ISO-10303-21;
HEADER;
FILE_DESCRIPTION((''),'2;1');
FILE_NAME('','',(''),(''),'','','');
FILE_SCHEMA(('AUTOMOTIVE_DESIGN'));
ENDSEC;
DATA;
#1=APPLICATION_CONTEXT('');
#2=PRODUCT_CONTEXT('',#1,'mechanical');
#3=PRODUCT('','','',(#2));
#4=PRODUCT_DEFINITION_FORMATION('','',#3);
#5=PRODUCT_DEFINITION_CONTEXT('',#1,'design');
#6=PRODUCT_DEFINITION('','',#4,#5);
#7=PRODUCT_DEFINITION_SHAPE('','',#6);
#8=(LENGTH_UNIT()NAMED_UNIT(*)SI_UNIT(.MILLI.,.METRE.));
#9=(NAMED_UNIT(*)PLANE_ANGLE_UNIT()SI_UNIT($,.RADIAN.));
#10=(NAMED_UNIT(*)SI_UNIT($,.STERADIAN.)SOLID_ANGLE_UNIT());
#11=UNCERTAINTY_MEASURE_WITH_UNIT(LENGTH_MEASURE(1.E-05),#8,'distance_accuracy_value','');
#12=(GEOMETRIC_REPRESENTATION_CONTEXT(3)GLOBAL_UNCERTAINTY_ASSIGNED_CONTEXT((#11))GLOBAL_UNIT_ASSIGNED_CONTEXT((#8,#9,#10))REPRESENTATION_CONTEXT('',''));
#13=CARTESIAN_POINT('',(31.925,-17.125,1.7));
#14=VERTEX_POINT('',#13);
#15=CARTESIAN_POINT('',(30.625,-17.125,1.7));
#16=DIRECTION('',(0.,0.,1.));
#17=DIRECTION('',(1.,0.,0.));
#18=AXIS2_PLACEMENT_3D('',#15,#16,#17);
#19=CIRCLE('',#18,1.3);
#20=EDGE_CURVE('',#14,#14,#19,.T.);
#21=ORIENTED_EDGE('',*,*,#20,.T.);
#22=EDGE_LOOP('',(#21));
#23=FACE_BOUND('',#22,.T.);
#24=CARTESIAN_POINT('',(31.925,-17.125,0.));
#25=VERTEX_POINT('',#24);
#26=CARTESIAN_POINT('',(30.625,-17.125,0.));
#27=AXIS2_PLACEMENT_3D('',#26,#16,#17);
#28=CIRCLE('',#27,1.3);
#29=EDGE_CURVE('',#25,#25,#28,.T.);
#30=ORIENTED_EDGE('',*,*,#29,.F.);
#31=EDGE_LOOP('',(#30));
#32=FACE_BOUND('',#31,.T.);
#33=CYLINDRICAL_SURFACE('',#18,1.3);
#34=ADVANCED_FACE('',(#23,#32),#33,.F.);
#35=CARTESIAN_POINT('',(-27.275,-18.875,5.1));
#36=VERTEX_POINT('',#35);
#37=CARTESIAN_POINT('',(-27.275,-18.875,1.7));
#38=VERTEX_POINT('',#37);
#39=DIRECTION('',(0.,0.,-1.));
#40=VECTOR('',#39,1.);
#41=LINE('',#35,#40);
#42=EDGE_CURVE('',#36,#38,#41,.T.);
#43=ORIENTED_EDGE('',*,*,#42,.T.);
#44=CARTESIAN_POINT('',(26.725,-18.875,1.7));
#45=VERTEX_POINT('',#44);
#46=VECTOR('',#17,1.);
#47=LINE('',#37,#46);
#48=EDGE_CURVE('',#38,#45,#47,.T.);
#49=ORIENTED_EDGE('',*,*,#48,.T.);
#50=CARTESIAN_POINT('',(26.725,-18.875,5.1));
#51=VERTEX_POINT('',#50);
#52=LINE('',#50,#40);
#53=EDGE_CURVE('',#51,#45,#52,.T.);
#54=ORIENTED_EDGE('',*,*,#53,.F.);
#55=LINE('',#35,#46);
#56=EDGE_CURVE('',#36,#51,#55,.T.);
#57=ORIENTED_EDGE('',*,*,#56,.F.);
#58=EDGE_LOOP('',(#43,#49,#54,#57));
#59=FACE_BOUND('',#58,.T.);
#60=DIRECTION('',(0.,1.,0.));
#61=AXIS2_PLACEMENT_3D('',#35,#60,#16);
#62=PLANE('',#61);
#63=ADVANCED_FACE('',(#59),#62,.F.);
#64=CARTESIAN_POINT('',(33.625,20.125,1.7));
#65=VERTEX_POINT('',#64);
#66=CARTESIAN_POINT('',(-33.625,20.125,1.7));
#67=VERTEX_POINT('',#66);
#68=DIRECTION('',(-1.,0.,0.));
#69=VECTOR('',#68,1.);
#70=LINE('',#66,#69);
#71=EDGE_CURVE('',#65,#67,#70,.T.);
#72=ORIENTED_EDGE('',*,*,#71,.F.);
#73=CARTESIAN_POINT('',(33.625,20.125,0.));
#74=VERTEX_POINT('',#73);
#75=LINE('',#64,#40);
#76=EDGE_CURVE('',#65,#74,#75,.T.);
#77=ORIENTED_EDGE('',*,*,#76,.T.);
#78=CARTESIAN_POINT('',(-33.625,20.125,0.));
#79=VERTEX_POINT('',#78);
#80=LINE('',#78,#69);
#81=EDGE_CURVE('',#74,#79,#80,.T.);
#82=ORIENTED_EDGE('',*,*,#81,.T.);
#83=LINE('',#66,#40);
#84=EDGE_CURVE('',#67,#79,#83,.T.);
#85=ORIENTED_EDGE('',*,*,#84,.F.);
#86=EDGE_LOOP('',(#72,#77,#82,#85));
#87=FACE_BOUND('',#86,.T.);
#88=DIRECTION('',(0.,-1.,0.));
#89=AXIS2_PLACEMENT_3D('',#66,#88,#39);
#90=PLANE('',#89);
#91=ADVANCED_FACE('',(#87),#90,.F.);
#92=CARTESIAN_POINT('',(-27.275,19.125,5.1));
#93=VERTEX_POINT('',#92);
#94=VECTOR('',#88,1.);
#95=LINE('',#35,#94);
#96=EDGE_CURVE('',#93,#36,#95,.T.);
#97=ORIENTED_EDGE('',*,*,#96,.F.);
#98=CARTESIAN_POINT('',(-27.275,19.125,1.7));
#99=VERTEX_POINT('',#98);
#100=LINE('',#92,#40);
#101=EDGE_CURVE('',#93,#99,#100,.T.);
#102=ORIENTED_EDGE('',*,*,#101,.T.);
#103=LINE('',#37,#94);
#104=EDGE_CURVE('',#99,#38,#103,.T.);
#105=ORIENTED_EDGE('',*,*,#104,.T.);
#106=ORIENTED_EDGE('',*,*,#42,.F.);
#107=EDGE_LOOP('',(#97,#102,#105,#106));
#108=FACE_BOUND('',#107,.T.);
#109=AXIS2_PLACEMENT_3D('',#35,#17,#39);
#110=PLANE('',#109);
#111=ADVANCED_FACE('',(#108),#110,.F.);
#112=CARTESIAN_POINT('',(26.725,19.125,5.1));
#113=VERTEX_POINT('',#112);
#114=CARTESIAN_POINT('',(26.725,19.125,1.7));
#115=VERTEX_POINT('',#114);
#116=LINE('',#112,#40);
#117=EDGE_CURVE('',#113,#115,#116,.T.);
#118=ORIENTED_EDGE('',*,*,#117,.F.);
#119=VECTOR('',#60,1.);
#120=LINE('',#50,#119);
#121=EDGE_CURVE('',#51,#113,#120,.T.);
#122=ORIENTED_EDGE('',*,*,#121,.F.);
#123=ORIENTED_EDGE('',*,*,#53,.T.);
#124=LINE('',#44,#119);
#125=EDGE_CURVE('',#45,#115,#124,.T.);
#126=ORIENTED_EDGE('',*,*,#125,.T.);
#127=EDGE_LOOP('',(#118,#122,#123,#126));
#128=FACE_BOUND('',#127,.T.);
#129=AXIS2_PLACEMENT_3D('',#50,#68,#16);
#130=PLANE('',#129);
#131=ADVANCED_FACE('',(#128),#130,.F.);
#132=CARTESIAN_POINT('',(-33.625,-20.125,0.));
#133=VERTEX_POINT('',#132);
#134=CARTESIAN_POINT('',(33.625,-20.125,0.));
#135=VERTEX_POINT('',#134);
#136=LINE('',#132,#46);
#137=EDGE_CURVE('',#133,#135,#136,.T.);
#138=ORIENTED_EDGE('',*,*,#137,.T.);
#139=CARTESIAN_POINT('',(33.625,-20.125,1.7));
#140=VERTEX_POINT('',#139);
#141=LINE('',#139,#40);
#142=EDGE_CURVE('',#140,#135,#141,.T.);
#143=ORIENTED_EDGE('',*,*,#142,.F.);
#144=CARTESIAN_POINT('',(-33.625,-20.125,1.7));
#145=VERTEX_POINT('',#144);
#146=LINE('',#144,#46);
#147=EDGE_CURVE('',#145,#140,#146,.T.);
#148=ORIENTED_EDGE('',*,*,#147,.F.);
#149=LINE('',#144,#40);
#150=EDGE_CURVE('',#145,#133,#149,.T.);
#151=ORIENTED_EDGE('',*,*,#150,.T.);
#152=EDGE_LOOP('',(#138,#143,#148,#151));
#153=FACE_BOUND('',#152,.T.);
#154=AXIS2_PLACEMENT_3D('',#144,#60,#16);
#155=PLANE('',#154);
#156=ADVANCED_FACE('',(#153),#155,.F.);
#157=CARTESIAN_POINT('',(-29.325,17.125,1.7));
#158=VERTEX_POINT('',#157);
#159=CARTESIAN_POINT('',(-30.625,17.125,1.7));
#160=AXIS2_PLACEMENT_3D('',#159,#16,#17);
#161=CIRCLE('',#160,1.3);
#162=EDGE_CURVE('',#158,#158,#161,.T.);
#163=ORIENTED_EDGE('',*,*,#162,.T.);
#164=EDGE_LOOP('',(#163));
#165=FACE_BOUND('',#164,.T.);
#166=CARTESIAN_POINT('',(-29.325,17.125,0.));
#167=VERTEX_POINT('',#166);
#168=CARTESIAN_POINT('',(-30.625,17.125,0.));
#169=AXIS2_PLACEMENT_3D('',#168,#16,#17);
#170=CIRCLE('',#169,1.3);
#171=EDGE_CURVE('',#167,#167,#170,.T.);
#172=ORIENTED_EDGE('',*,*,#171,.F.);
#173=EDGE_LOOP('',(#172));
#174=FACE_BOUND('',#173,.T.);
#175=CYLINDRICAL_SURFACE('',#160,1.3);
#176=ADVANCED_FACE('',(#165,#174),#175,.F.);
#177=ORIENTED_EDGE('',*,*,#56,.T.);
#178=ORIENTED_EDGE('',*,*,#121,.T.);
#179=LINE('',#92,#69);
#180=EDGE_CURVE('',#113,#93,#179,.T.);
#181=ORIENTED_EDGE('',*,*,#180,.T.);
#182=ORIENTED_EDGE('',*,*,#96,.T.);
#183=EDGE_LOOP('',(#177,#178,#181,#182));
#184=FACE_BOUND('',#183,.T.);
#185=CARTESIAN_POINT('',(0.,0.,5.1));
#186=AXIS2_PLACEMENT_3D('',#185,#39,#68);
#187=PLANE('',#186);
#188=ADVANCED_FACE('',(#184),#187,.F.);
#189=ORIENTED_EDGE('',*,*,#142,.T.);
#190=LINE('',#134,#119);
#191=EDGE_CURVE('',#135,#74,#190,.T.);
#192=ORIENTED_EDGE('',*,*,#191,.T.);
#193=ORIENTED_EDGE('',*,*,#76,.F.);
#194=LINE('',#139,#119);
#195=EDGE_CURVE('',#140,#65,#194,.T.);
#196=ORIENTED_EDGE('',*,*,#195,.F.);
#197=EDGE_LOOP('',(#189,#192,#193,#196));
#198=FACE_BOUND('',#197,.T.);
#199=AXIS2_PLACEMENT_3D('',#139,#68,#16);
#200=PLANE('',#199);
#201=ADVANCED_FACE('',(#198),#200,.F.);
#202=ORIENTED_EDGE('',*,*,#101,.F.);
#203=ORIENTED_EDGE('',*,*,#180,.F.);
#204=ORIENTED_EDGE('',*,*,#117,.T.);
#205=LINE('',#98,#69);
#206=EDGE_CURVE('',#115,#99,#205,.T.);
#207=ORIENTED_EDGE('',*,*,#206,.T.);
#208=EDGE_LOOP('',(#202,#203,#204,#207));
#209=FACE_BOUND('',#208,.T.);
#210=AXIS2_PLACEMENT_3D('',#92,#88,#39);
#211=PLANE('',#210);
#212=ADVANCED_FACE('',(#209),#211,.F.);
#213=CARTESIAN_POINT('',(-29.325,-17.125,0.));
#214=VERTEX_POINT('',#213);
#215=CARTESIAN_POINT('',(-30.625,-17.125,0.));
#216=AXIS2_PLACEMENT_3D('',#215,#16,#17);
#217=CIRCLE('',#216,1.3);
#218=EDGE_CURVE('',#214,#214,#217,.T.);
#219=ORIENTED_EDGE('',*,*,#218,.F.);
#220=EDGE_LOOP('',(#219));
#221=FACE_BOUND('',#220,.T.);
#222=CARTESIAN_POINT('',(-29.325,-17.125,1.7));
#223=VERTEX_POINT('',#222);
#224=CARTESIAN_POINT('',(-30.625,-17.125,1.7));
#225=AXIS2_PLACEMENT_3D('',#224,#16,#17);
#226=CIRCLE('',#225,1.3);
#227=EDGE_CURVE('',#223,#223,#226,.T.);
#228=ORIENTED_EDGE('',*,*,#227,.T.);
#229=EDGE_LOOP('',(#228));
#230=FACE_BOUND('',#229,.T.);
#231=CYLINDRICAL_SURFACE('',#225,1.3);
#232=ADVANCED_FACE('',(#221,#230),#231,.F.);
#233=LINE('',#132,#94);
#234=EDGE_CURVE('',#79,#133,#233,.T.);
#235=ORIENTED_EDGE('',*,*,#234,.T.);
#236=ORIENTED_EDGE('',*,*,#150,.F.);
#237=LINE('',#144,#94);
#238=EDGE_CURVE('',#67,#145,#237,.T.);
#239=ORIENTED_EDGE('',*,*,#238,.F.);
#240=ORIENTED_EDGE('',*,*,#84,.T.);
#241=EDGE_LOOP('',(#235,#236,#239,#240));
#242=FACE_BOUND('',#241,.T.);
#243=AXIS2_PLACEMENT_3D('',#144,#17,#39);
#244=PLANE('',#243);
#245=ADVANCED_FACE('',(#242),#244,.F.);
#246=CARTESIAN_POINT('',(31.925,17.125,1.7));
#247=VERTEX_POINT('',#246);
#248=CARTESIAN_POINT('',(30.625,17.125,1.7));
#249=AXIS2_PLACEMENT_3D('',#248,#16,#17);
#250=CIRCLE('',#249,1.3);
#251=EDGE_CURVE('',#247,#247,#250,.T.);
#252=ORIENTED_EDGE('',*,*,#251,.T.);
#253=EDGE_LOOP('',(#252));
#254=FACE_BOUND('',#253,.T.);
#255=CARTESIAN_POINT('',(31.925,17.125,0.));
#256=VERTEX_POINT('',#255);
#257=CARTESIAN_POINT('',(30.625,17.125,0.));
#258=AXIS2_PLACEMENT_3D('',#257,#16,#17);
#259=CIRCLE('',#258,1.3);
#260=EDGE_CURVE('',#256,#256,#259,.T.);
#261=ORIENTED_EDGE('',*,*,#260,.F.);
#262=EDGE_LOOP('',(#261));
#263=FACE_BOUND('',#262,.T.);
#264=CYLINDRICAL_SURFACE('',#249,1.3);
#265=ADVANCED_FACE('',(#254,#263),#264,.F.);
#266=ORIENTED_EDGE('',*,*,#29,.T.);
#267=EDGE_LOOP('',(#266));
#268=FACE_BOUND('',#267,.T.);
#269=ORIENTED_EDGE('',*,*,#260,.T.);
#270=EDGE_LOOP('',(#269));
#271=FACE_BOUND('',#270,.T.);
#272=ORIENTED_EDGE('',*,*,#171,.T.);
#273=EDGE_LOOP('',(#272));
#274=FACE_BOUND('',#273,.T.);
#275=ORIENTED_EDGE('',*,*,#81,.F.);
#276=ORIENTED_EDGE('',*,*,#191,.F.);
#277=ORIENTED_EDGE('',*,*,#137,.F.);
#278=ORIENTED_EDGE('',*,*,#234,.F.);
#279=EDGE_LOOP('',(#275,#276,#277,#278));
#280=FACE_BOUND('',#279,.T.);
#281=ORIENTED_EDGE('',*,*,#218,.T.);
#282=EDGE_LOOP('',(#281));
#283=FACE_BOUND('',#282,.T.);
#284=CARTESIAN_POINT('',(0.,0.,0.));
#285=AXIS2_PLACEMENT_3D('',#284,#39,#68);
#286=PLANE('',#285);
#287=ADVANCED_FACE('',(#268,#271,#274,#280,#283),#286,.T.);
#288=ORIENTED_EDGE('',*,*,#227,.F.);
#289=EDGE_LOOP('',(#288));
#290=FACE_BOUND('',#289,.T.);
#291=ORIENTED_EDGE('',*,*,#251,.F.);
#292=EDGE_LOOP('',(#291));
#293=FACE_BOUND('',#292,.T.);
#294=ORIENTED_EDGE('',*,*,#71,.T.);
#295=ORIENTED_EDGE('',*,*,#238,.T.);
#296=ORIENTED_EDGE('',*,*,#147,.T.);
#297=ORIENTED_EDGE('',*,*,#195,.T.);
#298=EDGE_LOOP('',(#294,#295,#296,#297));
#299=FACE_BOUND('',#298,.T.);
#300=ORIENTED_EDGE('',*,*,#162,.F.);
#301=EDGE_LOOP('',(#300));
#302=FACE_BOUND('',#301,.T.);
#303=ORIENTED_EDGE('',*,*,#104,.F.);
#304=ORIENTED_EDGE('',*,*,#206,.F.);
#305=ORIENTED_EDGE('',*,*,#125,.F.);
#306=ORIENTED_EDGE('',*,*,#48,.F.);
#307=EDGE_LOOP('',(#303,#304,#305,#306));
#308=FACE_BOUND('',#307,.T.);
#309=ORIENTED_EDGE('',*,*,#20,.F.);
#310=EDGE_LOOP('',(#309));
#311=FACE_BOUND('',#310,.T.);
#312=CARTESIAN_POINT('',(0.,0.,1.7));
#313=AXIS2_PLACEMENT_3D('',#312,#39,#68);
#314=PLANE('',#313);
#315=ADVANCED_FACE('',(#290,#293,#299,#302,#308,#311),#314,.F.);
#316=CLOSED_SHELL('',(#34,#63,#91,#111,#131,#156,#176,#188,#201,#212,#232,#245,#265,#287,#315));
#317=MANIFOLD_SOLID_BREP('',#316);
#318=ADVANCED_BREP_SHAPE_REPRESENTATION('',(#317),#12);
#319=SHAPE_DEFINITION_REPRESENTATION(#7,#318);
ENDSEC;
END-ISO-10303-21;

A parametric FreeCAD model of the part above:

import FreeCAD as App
import Part
import Sketcher

doc = App.newDocument("Part")
body = doc.addObject("PartDesign::Body", "Body")

# Sketch on XY plane
sketch1 = body.newObject("Sketcher::SketchObject", "Sketch")
sketch1.AttachmentSupport = (doc.getObject("XY_Plane"), [""])
sketch1.MapMode = "FlatFace"
sketch1.addGeometry(Part.LineSegment(App.Vector(-34, 20, 0), App.Vector(-34, -20, 0)), False)
sketch1.addGeometry(Part.LineSegment(App.Vector(-34, -20, 0), App.Vector(34, -20, 0)), False)
sketch1.addGeometry(Part.LineSegment(App.Vector(34, -20, 0), App.Vector(34, 20, 0)), False)
sketch1.addGeometry(Part.LineSegment(App.Vector(34, 20, 0), App.Vector(-34, 20, 0)), False)
sketch1.addConstraint(Sketcher.Constraint("Coincident", 0, 2, 1, 1))
sketch1.addConstraint(Sketcher.Constraint("Coincident", 1, 2, 2, 1))
sketch1.addConstraint(Sketcher.Constraint("Coincident", 2, 2, 3, 1))
sketch1.addConstraint(Sketcher.Constraint("Coincident", 3, 2, 0, 1))
sketch1.addConstraint(Sketcher.Constraint("Vertical", 0))
sketch1.addConstraint(Sketcher.Constraint("Horizontal", 1))
sketch1.addConstraint(Sketcher.Constraint("Vertical", 2))
sketch1.addConstraint(Sketcher.Constraint("Horizontal", 3))
sketch1.addConstraint(Sketcher.Constraint("Symmetric", 0, 2, 2, 2, -1, 1))
sketch1.addConstraint(Sketcher.Constraint("DistanceX", 1, 1, 1, 2, 67.25))
sketch1.addConstraint(Sketcher.Constraint("DistanceY", 0, 2, 0, 1, 40.25))
pad1 = body.newObject("PartDesign::Pad", "Pad")
pad1.Profile = sketch1
pad1.Length = 1.7

# Sketch on XY plane
sketch2 = body.newObject("Sketcher::SketchObject", "Sketch001")
sketch2.AttachmentSupport = (doc.getObject("XY_Plane"), [""])
sketch2.MapMode = "FlatFace"
sketch2.AttachmentOffset = App.Placement(App.Vector(0, 0, 1.7), App.Rotation())
sketch2.addGeometry(Part.LineSegment(App.Vector(-27, 19, 0), App.Vector(-27, -19, 0)), False)
sketch2.addGeometry(Part.LineSegment(App.Vector(-27, -19, 0), App.Vector(27, -19, 0)), False)
sketch2.addGeometry(Part.LineSegment(App.Vector(27, -19, 0), App.Vector(27, 19, 0)), False)
sketch2.addGeometry(Part.LineSegment(App.Vector(27, 19, 0), App.Vector(-27, 19, 0)), False)
sketch2.addConstraint(Sketcher.Constraint("Coincident", 0, 2, 1, 1))
sketch2.addConstraint(Sketcher.Constraint("Coincident", 1, 2, 2, 1))
sketch2.addConstraint(Sketcher.Constraint("Coincident", 2, 2, 3, 1))
sketch2.addConstraint(Sketcher.Constraint("Coincident", 3, 2, 0, 1))
sketch2.addConstraint(Sketcher.Constraint("Vertical", 0))
sketch2.addConstraint(Sketcher.Constraint("Horizontal", 1))
sketch2.addConstraint(Sketcher.Constraint("Vertical", 2))
sketch2.addConstraint(Sketcher.Constraint("Horizontal", 3))
sketch2.addConstraint(Sketcher.Constraint("DistanceX", 1, 1, 1, 2, 54.0))
sketch2.addConstraint(Sketcher.Constraint("DistanceY", 0, 2, 0, 1, 38.0))
sketch2.addConstraint(Sketcher.Constraint("DistanceX", 0, 2, -1, 1, 27.275))
sketch2.addConstraint(Sketcher.Constraint("DistanceY", 0, 2, -1, 1, 18.875))
pad2 = body.newObject("PartDesign::Pad", "Pad001")
pad2.Profile = sketch2
pad2.Length = 3.4

# Sketch on XY plane
sketch3 = body.newObject("Sketcher::SketchObject", "Sketch002")
sketch3.AttachmentSupport = (doc.getObject("XY_Plane"), [""])
sketch3.MapMode = "FlatFace"
sketch3.AttachmentOffset = App.Placement(App.Vector(0, 0, 1.7), App.Rotation())
sketch3.addGeometry(Part.Circle(App.Vector(-30.6, 17.1, 0), App.Vector(0, 0, 1), 1.3), False)
sketch3.addGeometry(Part.Circle(App.Vector(-30.6, -17.1, 0), App.Vector(0, 0, 1), 1.3), False)
sketch3.addGeometry(Part.Circle(App.Vector(30.6, -17.1, 0), App.Vector(0, 0, 1), 1.3), False)
sketch3.addGeometry(Part.Circle(App.Vector(30.6, 17.1, 0), App.Vector(0, 0, 1), 1.3), False)
sketch3.addConstraint(Sketcher.Constraint("Equal", 0, 1))
sketch3.addConstraint(Sketcher.Constraint("Equal", 1, 2))
sketch3.addConstraint(Sketcher.Constraint("Equal", 2, 3))
sketch3.addConstraint(Sketcher.Constraint("Symmetric", 0, 3, 2, 3, -1, 1))
sketch3.addConstraint(Sketcher.Constraint("Symmetric", 1, 3, 3, 3, -1, 1))
sketch3.addConstraint(Sketcher.Constraint("Symmetric", 1, 3, 2, 3, -2))
sketch3.addConstraint(Sketcher.Constraint("Diameter", 0, 2.6))
sketch3.addConstraint(Sketcher.Constraint("DistanceY", 1, 3, 0, 3, 34.25))
sketch3.addConstraint(Sketcher.Constraint("DistanceX", 1, 3, 2, 3, 61.25))
doc.recompute()
hole = body.newObject("PartDesign::Hole", "Hole")
hole.Profile = sketch3
hole.ThreadType = "None"
hole.Diameter = 2.6
hole.DepthType = "ThroughAll"

doc.recompute()
